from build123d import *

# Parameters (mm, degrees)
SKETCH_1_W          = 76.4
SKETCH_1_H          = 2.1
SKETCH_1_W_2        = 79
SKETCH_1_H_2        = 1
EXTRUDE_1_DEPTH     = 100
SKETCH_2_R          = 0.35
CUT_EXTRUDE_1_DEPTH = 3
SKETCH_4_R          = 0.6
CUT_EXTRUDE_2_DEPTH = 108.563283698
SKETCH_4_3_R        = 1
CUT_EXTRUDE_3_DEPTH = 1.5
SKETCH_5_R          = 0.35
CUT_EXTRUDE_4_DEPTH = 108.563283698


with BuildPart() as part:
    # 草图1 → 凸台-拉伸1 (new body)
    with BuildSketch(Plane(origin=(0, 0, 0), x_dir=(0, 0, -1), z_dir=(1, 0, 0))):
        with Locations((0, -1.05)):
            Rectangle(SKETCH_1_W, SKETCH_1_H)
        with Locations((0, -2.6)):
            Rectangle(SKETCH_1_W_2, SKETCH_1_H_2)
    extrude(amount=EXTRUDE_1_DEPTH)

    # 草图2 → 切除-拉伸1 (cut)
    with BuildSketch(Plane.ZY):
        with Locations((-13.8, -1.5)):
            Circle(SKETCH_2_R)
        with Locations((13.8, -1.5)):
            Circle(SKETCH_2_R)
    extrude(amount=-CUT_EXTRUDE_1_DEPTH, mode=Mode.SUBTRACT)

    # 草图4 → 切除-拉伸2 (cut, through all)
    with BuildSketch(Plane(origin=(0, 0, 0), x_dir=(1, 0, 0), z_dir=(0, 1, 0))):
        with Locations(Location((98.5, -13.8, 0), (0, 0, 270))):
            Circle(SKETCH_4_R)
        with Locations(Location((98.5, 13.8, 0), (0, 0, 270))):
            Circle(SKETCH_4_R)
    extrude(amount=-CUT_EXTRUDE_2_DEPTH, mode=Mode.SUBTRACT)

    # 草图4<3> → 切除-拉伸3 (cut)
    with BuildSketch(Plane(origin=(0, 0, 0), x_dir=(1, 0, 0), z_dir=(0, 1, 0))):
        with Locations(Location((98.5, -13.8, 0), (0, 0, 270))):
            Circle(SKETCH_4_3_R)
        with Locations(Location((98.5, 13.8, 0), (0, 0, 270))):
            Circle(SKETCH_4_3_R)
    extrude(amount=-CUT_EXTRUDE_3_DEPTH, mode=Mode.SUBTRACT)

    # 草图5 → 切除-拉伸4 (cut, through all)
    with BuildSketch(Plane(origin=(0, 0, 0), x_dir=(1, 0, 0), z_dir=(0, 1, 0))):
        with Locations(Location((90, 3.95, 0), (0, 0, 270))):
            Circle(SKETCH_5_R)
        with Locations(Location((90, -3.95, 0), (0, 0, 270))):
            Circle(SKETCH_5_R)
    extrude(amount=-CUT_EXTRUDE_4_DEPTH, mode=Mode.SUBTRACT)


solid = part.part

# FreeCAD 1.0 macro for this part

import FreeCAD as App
import Part
import Sketcher
Q = App.Units.Quantity


def add_polygon(sketch, points):
    """Adds a closed chain of lines whose ends are joined by coincident constraints."""
    first, n = sketch.GeometryCount, len(points)
    for a, b in zip(points, points[1:] + points[:1]):
        sketch.addGeometry(Part.LineSegment(App.Vector(*a, 0), App.Vector(*b, 0)), False)
    for i in range(n):
        sketch.addConstraint(Sketcher.Constraint("Coincident", first + i, 2, first + (i + 1) % n, 1))

doc = App.newDocument("Part")
body = doc.addObject("PartDesign::Body", "Body")

sketch1 = doc.addObject("Sketcher::SketchObject", "Sketch")
body.addObject(sketch1)
sketch1.AttachmentSupport = (doc.YZ_Plane, [""])
sketch1.MapMode = "FlatFace"
add_polygon(sketch1, [(0, 38.2), (-2.1, 38.2), (-2.1, 39.5), (-3.1, 39.5), (-3.1, -39.5), (-2.1, -39.5), (-2.1, -38.2), (0, -38.2)])
sketch1.addConstraint([
    Sketcher.Constraint("Horizontal", 0),
    Sketcher.Constraint("Vertical", 1),
    Sketcher.Constraint("Horizontal", 2),
    Sketcher.Constraint("Vertical", 3),
    Sketcher.Constraint("Horizontal", 4),
    Sketcher.Constraint("Vertical", 5),
    Sketcher.Constraint("Horizontal", 6),
    Sketcher.Constraint("Vertical", 7),
    Sketcher.Constraint("Symmetric", 6, 2, 7, 2, -1, 1),
    Sketcher.Constraint("Symmetric", 1, 2, 4, 2, -1),
    Sketcher.Constraint("DistanceX", 2, 2, 2, 1, Q("1 mm")),
    Sketcher.Constraint("DistanceY", 3, 2, 3, 1, Q("79 mm")),
    Sketcher.Constraint("DistanceX", 0, 2, 0, 1, Q("2.1 mm")),
    Sketcher.Constraint("DistanceY", 1, 1, 1, 2, Q("1.3 mm")),
])
pad1 = doc.addObject("PartDesign::Pad", "Pad")
body.addObject(pad1)
pad1.Profile = sketch1
pad1.Length = 100

sketch2 = doc.addObject("Sketcher::SketchObject", "Sketch001")
body.addObject(sketch2)
sketch2.AttachmentSupport = (doc.YZ_Plane, [""])
sketch2.MapMode = "FlatFace"
sketch2.addGeometry([
    Part.Circle(App.Vector(-1.5, -13.8, 0), App.Vector(0, 0, 1), 0.35),
    Part.Circle(App.Vector(-1.5, 13.8, 0), App.Vector(0, 0, 1), 0.35),
], False)
sketch2.addConstraint([
    Sketcher.Constraint("Equal", 0, 1),
    Sketcher.Constraint("Symmetric", 0, 3, 1, 3, -1),
    Sketcher.Constraint("Diameter", 0, Q("0.7 mm")),
    Sketcher.Constraint("DistanceX", 0, 3, -1, 1, Q("1.5 mm")),
    Sketcher.Constraint("DistanceY", 0, 3, -1, 1, Q("13.8 mm")),
])
pocket1 = doc.addObject("PartDesign::Pocket", "Pocket")
body.addObject(pocket1)
pocket1.Profile = sketch2
pocket1.Length = 3
pocket1.Reversed = True

sketch3 = doc.addObject("Sketcher::SketchObject", "Sketch002")
body.addObject(sketch3)
sketch3.AttachmentSupport = (doc.XZ_Plane, [""])
sketch3.MapMode = "FlatFace"
sketch3.addGeometry([
    Part.Circle(App.Vector(98.5, 13.8, 0), App.Vector(0, 0, 1), 0.6),
    Part.Circle(App.Vector(98.5, -13.8, 0), App.Vector(0, 0, 1), 0.6),
], False)
sketch3.addConstraint([
    Sketcher.Constraint("Equal", 0, 1),
    Sketcher.Constraint("Symmetric", 0, 3, 1, 3, -1),
    Sketcher.Constraint("Diameter", 0, Q("1.2 mm")),
    Sketcher.Constraint("DistanceX", -1, 1, 0, 3, Q("98.5 mm")),
    Sketcher.Constraint("DistanceY", -1, 1, 0, 3, Q("13.8 mm")),
])
pocket2 = doc.addObject("PartDesign::Pocket", "Pocket001")
body.addObject(pocket2)
pocket2.Profile = sketch3
pocket2.Type = "ThroughAll"
pocket2.Reversed = True

sketch4 = doc.addObject("Sketcher::SketchObject", "Sketch003")
body.addObject(sketch4)
sketch4.AttachmentSupport = (doc.XZ_Plane, [""])
sketch4.MapMode = "FlatFace"
sketch4.addGeometry([
    Part.Circle(App.Vector(98.5, 13.8, 0), App.Vector(0, 0, 1), 1),
    Part.Circle(App.Vector(98.5, -13.8, 0), App.Vector(0, 0, 1), 1),
], False)
sketch4.addConstraint([
    Sketcher.Constraint("Equal", 0, 1),
    Sketcher.Constraint("Symmetric", 0, 3, 1, 3, -1),
    Sketcher.Constraint("Diameter", 0, Q("2 mm")),
    Sketcher.Constraint("DistanceX", -1, 1, 0, 3, Q("98.5 mm")),
    Sketcher.Constraint("DistanceY", -1, 1, 0, 3, Q("13.8 mm")),
])
pocket3 = doc.addObject("PartDesign::Pocket", "Pocket002")
body.addObject(pocket3)
pocket3.Profile = sketch4
pocket3.Length = 1.5
pocket3.Reversed = True

sketch5 = doc.addObject("Sketcher::SketchObject", "Sketch004")
body.addObject(sketch5)
sketch5.AttachmentSupport = (doc.XZ_Plane, [""])
sketch5.MapMode = "FlatFace"
sketch5.addGeometry([
    Part.Circle(App.Vector(90, -3.95, 0), App.Vector(0, 0, 1), 0.35),
    Part.Circle(App.Vector(90, 3.95, 0), App.Vector(0, 0, 1), 0.35),
], False)
sketch5.addConstraint([
    Sketcher.Constraint("Equal", 0, 1),
    Sketcher.Constraint("Symmetric", 0, 3, 1, 3, -1),
    Sketcher.Constraint("Diameter", 0, Q("0.7 mm")),
    Sketcher.Constraint("DistanceX", -1, 1, 0, 3, Q("90 mm")),
    Sketcher.Constraint("DistanceY", 0, 3, 1, 3, Q("7.9 mm")),
])
pocket4 = doc.addObject("PartDesign::Pocket", "Pocket003")
body.addObject(pocket4)
pocket4.Profile = sketch5
pocket4.Type = "ThroughAll"
pocket4.Reversed = True

doc.recompute()
